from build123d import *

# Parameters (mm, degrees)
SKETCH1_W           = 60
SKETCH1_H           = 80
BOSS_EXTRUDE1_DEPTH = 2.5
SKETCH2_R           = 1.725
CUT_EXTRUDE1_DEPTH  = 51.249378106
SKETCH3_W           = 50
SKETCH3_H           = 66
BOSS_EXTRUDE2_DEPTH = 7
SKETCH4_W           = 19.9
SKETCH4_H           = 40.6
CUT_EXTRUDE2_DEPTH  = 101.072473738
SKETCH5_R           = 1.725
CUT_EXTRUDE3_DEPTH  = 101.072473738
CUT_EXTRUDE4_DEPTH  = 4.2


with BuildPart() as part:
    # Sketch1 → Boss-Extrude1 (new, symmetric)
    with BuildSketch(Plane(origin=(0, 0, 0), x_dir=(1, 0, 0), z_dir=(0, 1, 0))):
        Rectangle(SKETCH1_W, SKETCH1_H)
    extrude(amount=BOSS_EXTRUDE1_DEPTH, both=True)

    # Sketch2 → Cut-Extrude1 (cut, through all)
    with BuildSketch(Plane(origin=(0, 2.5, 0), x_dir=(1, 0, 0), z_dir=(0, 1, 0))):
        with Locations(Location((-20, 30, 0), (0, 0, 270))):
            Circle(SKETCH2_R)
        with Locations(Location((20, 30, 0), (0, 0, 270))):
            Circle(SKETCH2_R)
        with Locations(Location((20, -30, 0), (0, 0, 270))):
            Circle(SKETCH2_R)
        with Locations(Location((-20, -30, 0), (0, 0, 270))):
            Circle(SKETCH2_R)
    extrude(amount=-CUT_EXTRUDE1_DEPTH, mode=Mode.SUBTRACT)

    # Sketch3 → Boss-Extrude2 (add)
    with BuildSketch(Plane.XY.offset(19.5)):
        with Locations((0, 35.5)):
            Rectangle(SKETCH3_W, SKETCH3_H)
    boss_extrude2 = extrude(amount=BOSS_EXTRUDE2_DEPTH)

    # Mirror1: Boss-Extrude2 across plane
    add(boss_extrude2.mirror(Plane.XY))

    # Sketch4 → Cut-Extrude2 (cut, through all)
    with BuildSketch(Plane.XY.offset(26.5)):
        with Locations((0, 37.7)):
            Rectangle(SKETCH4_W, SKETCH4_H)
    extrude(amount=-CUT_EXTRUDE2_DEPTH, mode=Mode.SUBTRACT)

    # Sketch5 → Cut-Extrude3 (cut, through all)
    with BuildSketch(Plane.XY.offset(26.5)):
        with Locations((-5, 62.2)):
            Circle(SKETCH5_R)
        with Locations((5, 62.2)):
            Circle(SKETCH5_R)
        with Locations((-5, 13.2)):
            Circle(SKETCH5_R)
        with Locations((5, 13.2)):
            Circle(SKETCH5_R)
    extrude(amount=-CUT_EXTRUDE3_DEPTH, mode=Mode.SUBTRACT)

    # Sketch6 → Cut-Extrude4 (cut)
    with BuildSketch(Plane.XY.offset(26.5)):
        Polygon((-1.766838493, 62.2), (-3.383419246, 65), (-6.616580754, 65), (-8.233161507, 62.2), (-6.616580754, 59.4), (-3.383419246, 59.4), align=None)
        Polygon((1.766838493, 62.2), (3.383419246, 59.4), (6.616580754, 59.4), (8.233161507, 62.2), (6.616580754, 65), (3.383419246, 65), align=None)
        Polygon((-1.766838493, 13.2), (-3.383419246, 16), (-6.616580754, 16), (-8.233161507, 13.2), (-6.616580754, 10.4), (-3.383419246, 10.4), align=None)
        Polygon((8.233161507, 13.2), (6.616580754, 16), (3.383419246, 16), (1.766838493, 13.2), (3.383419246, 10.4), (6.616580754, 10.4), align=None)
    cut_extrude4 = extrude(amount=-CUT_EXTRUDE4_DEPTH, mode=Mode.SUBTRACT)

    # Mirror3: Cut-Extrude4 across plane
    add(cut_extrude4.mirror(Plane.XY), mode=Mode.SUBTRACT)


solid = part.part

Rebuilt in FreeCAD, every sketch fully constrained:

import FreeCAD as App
import Part
import Sketcher
Q = App.Units.Quantity

doc = App.newDocument("Part")
body = doc.addObject("PartDesign::Body", "Body")

sketch1 = body.newObject("Sketcher::SketchObject", "Sketch")
sketch1.AttachmentSupport = (doc.getObject("XZ_Plane"), [""])
sketch1.MapMode = "FlatFace"
sketch1.addGeometry([
    Part.LineSegment(App.Vector(-30, -40, 0), App.Vector(-30, 40, 0)),
    Part.LineSegment(App.Vector(-30, 40, 0), App.Vector(30, 40, 0)),
    Part.LineSegment(App.Vector(30, 40, 0), App.Vector(30, -40, 0)),
    Part.LineSegment(App.Vector(30, -40, 0), App.Vector(-30, -40, 0)),
], False)
sketch1.addConstraint([
    Sketcher.Constraint("Coincident", 0, 2, 1, 1),
    Sketcher.Constraint("Coincident", 1, 2, 2, 1),
    Sketcher.Constraint("Coincident", 2, 2, 3, 1),
    Sketcher.Constraint("Coincident", 3, 2, 0, 1),
    Sketcher.Constraint("Vertical", 0),
    Sketcher.Constraint("Horizontal", 1),
    Sketcher.Constraint("Vertical", 2),
    Sketcher.Constraint("Horizontal", 3),
    Sketcher.Constraint("Symmetric", 0, 2, 2, 2, -1, 1),
    Sketcher.Constraint("DistanceX", 1, 1, 1, 2, 60.0),
    Sketcher.Constraint("DistanceY", 0, 1, 0, 2, 80.0),
])
pad1 = body.newObject("PartDesign::Pad", "Pad")
pad1.Profile = sketch1
pad1.Length = 5
pad1.Midplane = True

sketch2 = body.newObject("Sketcher::SketchObject", "Sketch001")
sketch2.AttachmentSupport = (doc.getObject("XZ_Plane"), [""])
sketch2.MapMode = "FlatFace"
sketch2.AttachmentOffset = App.Placement(App.Vector(0, 0, -2.5), App.Rotation())
sketch2.addGeometry([
    Part.Circle(App.Vector(-20, -30, 0), App.Vector(0, 0, 1), 1.725),
    Part.Circle(App.Vector(20, -30, 0), App.Vector(0, 0, 1), 1.725),
    Part.Circle(App.Vector(20, 30, 0), App.Vector(0, 0, 1), 1.725),
    Part.Circle(App.Vector(-20, 30, 0), App.Vector(0, 0, 1), 1.725),
], False)
sketch2.addConstraint([
    Sketcher.Constraint("Equal", 0, 1),
    Sketcher.Constraint("Equal", 1, 2),
    Sketcher.Constraint("Equal", 2, 3),
    Sketcher.Constraint("Symmetric", 0, 3, 2, 3, -1, 1),
    Sketcher.Constraint("Symmetric", 1, 3, 3, 3, -1, 1),
    Sketcher.Constraint("Symmetric", 0, 3, 1, 3, -2),
    Sketcher.Constraint("Diameter", 0, 3.45),
    Sketcher.Constraint("DistanceX", 0, 3, -1, 1, 20.0),
    Sketcher.Constraint("DistanceY", 0, 3, -1, 1, 30.0),
])
pocket1 = body.newObject("PartDesign::Pocket", "Pocket")
pocket1.Profile = sketch2
pocket1.Type = "ThroughAll"
pocket1.Reversed = True

sketch3 = body.newObject("Sketcher::SketchObject", "Sketch002")
sketch3.AttachmentSupport = (doc.getObject("XY_Plane"), [""])
sketch3.MapMode = "FlatFace"
sketch3.AttachmentOffset = App.Placement(App.Vector(0, 0, 19.5), App.Rotation())
sketch3.addGeometry([
    Part.LineSegment(App.Vector(-25, 68.5, 0), App.Vector(-25, 2.5, 0)),
    Part.LineSegment(App.Vector(-25, 2.5, 0), App.Vector(25, 2.5, 0)),
    Part.LineSegment(App.Vector(25, 2.5, 0), App.Vector(25, 68.5, 0)),
    Part.LineSegment(App.Vector(25, 68.5, 0), App.Vector(-25, 68.5, 0)),
], False)
sketch3.addConstraint([
    Sketcher.Constraint("Coincident", 0, 2, 1, 1),
    Sketcher.Constraint("Coincident", 1, 2, 2, 1),
    Sketcher.Constraint("Coincident", 2, 2, 3, 1),
    Sketcher.Constraint("Coincident", 3, 2, 0, 1),
    Sketcher.Constraint("Vertical", 0),
    Sketcher.Constraint("Horizontal", 1),
    Sketcher.Constraint("Vertical", 2),
    Sketcher.Constraint("Horizontal", 3),
    Sketcher.Constraint("DistanceX", 1, 1, 1, 2, 50.0),
    Sketcher.Constraint("DistanceY", 0, 2, 0, 1, 66.0),
    Sketcher.Constraint("DistanceX", 0, 2, -1, 1, 25.0),
    Sketcher.Constraint("DistanceY", -1, 1, 0, 2, 2.5),
])
pad2 = body.newObject("PartDesign::Pad", "Pad001")
pad2.Profile = sketch3
pad2.Length = 7
doc.recompute()

mirrored = body.newObject("PartDesign::Mirrored", "Mirrored")
mirrored.Originals = [pad2]
mirrored.MirrorPlane = (doc.getObject("XY_Plane"), [""])
body.Tip = mirrored

sketch4 = body.newObject("Sketcher::SketchObject", "Sketch003")
sketch4.AttachmentSupport = (doc.getObject("XY_Plane"), [""])
sketch4.MapMode = "FlatFace"
sketch4.AttachmentOffset = App.Placement(App.Vector(0, 0, 26.5), App.Rotation())
sketch4.addGeometry([
    Part.LineSegment(App.Vector(-9.95, 58, 0), App.Vector(-9.95, 17.4, 0)),
    Part.LineSegment(App.Vector(-9.95, 17.4, 0), App.Vector(9.95, 17.4, 0)),
    Part.LineSegment(App.Vector(9.95, 17.4, 0), App.Vector(9.95, 58, 0)),
    Part.LineSegment(App.Vector(9.95, 58, 0), App.Vector(-9.95, 58, 0)),
], False)
sketch4.addConstraint([
    Sketcher.Constraint("Coincident", 0, 2, 1, 1),
    Sketcher.Constraint("Coincident", 1, 2, 2, 1),
    Sketcher.Constraint("Coincident", 2, 2, 3, 1),
    Sketcher.Constraint("Coincident", 3, 2, 0, 1),
    Sketcher.Constraint("Vertical", 0),
    Sketcher.Constraint("Horizontal", 1),
    Sketcher.Constraint("Vertical", 2),
    Sketcher.Constraint("Horizontal", 3),
    Sketcher.Constraint("DistanceX", 1, 1, 1, 2, 19.9),
    Sketcher.Constraint("DistanceY", 0, 2, 0, 1, 40.6),
    Sketcher.Constraint("DistanceY", -1, 1, 2, 2, 58.0),
    Sketcher.Constraint("DistanceX", 0, 2, -1, 1, 9.95),
])
pocket2 = body.newObject("PartDesign::Pocket", "Pocket001")
pocket2.Profile = sketch4
pocket2.Type = "ThroughAll"

sketch5 = body.newObject("Sketcher::SketchObject", "Sketch004")
sketch5.AttachmentSupport = (doc.getObject("XY_Plane"), [""])
sketch5.MapMode = "FlatFace"
sketch5.AttachmentOffset = App.Placement(App.Vector(0, 0, 26.5), App.Rotation())
sketch5.addGeometry([
    Part.Circle(App.Vector(-5, 62.2, 0), App.Vector(0, 0, 1), 1.725),
    Part.Circle(App.Vector(5, 62.2, 0), App.Vector(0, 0, 1), 1.725),
    Part.Circle(App.Vector(-5, 13.2, 0), App.Vector(0, 0, 1), 1.725),
    Part.Circle(App.Vector(5, 13.2, 0), App.Vector(0, 0, 1), 1.725),
], False)
sketch5.addConstraint([
    Sketcher.Constraint("Equal", 0, 1),
    Sketcher.Constraint("Equal", 1, 2),
    Sketcher.Constraint("Equal", 2, 3),
    Sketcher.Constraint("Symmetric", 0, 3, 1, 3, -2),
    Sketcher.Constraint("Symmetric", 2, 3, 3, 3, -2),
    Sketcher.Constraint("Vertical", 0, 3, 2, 3),
    Sketcher.Constraint("Diameter", 0, 3.45),
    Sketcher.Constraint("DistanceX", 0, 3, -1, 1, 5.0),
    Sketcher.Constraint("DistanceY", 2, 3, 0, 3, 49.0),
    Sketcher.Constraint("DistanceY", -1, 1, 0, 3, 62.2),
])
pocket3 = body.newObject("PartDesign::Pocket", "Pocket002")
pocket3.Profile = sketch5
pocket3.Type = "ThroughAll"

sketch6 = body.newObject("Sketcher::SketchObject", "Sketch005")
sketch6.AttachmentSupport = (doc.getObject("XY_Plane"), [""])
sketch6.MapMode = "FlatFace"
sketch6.AttachmentOffset = App.Placement(App.Vector(0, 0, 26.5), App.Rotation())
sketch6.addGeometry([
    Part.LineSegment(App.Vector(-1.766838, 62.2, 0), App.Vector(-3.383419, 65, 0)),
    Part.LineSegment(App.Vector(-3.383419, 65, 0), App.Vector(-6.616581, 65, 0)),
    Part.LineSegment(App.Vector(-6.616581, 65, 0), App.Vector(-8.233162, 62.2, 0)),
    Part.LineSegment(App.Vector(-8.233162, 62.2, 0), App.Vector(-6.616581, 59.4, 0)),
    Part.LineSegment(App.Vector(-6.616581, 59.4, 0), App.Vector(-3.383419, 59.4, 0)),
    Part.LineSegment(App.Vector(-3.383419, 59.4, 0), App.Vector(-1.766838, 62.2, 0)),
    Part.LineSegment(App.Vector(1.766838, 62.2, 0), App.Vector(3.383419, 59.4, 0)),
    Part.LineSegment(App.Vector(3.383419, 59.4, 0), App.Vector(6.616581, 59.4, 0)),
    Part.LineSegment(App.Vector(6.616581, 59.4, 0), App.Vector(8.233162, 62.2, 0)),
    Part.LineSegment(App.Vector(8.233162, 62.2, 0), App.Vector(6.616581, 65, 0)),
    Part.LineSegment(App.Vector(6.616581, 65, 0), App.Vector(3.383419, 65, 0)),
    Part.LineSegment(App.Vector(3.383419, 65, 0), App.Vector(1.766838, 62.2, 0)),
    Part.LineSegment(App.Vector(-1.766838, 13.2, 0), App.Vector(-3.383419, 16, 0)),
    Part.LineSegment(App.Vector(-3.383419, 16, 0), App.Vector(-6.616581, 16, 0)),
    Part.LineSegment(App.Vector(-6.616581, 16, 0), App.Vector(-8.233162, 13.2, 0)),
    Part.LineSegment(App.Vector(-8.233162, 13.2, 0), App.Vector(-6.616581, 10.4, 0)),
    Part.LineSegment(App.Vector(-6.616581, 10.4, 0), App.Vector(-3.383419, 10.4, 0)),
    Part.LineSegment(App.Vector(-3.383419, 10.4, 0), App.Vector(-1.766838, 13.2, 0)),
    Part.LineSegment(App.Vector(8.233162, 13.2, 0), App.Vector(6.616581, 16, 0)),
    Part.LineSegment(App.Vector(6.616581, 16, 0), App.Vector(3.383419, 16, 0)),
    Part.LineSegment(App.Vector(3.383419, 16, 0), App.Vector(1.766838, 13.2, 0)),
    Part.LineSegment(App.Vector(1.766838, 13.2, 0), App.Vector(3.383419, 10.4, 0)),
    Part.LineSegment(App.Vector(3.383419, 10.4, 0), App.Vector(6.616581, 10.4, 0)),
    Part.LineSegment(App.Vector(6.616581, 10.4, 0), App.Vector(8.233162, 13.2, 0)),
], False)
sketch6.addConstraint([
    Sketcher.Constraint("Coincident", 0, 2, 1, 1),
    Sketcher.Constraint("Coincident", 1, 2, 2, 1),
    Sketcher.Constraint("Coincident", 2, 2, 3, 1),
    Sketcher.Constraint("Coincident", 3, 2, 4, 1),
    Sketcher.Constraint("Coincident", 4, 2, 5, 1),
    Sketcher.Constraint("Coincident", 5, 2, 0, 1),
    Sketcher.Constraint("Coincident", 6, 2, 7, 1),
    Sketcher.Constraint("Coincident", 7, 2, 8, 1),
    Sketcher.Constraint("Coincident", 8, 2, 9, 1),
    Sketcher.Constraint("Coincident", 9, 2, 10, 1),
    Sketcher.Constraint("Coincident", 10, 2, 11, 1),
    Sketcher.Constraint("Coincident", 11, 2, 6, 1),
    Sketcher.Constraint("Coincident", 12, 2, 13, 1),
    Sketcher.Constraint("Coincident", 13, 2, 14, 1),
    Sketcher.Constraint("Coincident", 14, 2, 15, 1),
    Sketcher.Constraint("Coincident", 15, 2, 16, 1),
    Sketcher.Constraint("Coincident", 16, 2, 17, 1),
    Sketcher.Constraint("Coincident", 17, 2, 12, 1),
    Sketcher.Constraint("Coincident", 18, 2, 19, 1),
    Sketcher.Constraint("Coincident", 19, 2, 20, 1),
    Sketcher.Constraint("Coincident", 20, 2, 21, 1),
    Sketcher.Constraint("Coincident", 21, 2, 22, 1),
    Sketcher.Constraint("Coincident", 22, 2, 23, 1),
    Sketcher.Constraint("Coincident", 23, 2, 18, 1),
    Sketcher.Constraint("Horizontal", 1),
    Sketcher.Constraint("Horizontal", 4),
    Sketcher.Constraint("Horizontal", 7),
    Sketcher.Constraint("Horizontal", 10),
    Sketcher.Constraint("Horizontal", 13),
    Sketcher.Constraint("Horizontal", 16),
    Sketcher.Constraint("Horizontal", 19),
    Sketcher.Constraint("Horizontal", 22),
    Sketcher.Constraint("Symmetric", 4, 2, 6, 2, -2),
    Sketcher.Constraint("Symmetric", 2, 2, 8, 2, -2),
    Sketcher.Constraint("Symmetric", 1, 2, 9, 2, -2),
    Sketcher.Constraint("Symmetric", 5, 2, 11, 2, -2),
    Sketcher.Constraint("Symmetric", 13, 2, 18, 2, -2),
    Sketcher.Constraint("Symmetric", 17, 2, 20, 2, -2),
    Sketcher.Constraint("Symmetric", 16, 2, 21, 2, -2),
    Sketcher.Constraint("Symmetric", 14, 2, 23, 2, -2),
    Sketcher.Constraint("Parallel", 0, 3),
    Sketcher.Constraint("Parallel", 2, 5),
    Sketcher.Constraint("Parallel", 3, 6),
    Sketcher.Constraint("Parallel", 5, 8),
    Sketcher.Constraint("Parallel", 8, 11),
    Sketcher.Constraint("Parallel", 9, 12),
    Sketcher.Constraint("Parallel", 11, 14),
    Sketcher.Constraint("Parallel", 12, 15),
    Sketcher.Constraint("Parallel", 14, 17),
    Sketcher.Constraint("Parallel", 17, 20),
    Sketcher.Constraint("Parallel", 20, 23),
    Sketcher.Constraint("Horizontal", 2, 2, 5, 2),
    Sketcher.Constraint("Horizontal", 14, 2, 17, 2),
    Sketcher.Constraint("Vertical", 1, 2, 3, 2),
    Sketcher.Constraint("Vertical", 4, 2, 12, 2),
    Sketcher.Constraint("Vertical", 3, 2, 13, 2),
    Sketcher.Constraint("Vertical", 2, 2, 14, 2),
    Sketcher.Constraint("Vertical", 13, 2, 15, 2),
    Sketcher.Constraint("Angle", 0, Q("120 deg")),
    Sketcher.Constraint("DistanceY", -1, 1, 0, 2, 65.0),
    Sketcher.Constraint("DistanceY", -1, 1, 12, 2, 16.0),
    Sketcher.Constraint("DistanceX", 3, 2, 6, 2, 10.0),
    Sketcher.Constraint("DistanceY", -1, 1, 2, 2, 62.2),
    Sketcher.Constraint("DistanceX", 1, 2, 1, 1, 3.233162),
])
pocket4 = body.newObject("PartDesign::Pocket", "Pocket003")
pocket4.Profile = sketch6
pocket4.Length = 4.2
doc.recompute()

mirrored2 = body.newObject("PartDesign::Mirrored", "Mirrored001")
mirrored2.Originals = [pocket4]
mirrored2.MirrorPlane = (doc.getObject("XY_Plane"), [""])
body.Tip = mirrored2

doc.recompute()
